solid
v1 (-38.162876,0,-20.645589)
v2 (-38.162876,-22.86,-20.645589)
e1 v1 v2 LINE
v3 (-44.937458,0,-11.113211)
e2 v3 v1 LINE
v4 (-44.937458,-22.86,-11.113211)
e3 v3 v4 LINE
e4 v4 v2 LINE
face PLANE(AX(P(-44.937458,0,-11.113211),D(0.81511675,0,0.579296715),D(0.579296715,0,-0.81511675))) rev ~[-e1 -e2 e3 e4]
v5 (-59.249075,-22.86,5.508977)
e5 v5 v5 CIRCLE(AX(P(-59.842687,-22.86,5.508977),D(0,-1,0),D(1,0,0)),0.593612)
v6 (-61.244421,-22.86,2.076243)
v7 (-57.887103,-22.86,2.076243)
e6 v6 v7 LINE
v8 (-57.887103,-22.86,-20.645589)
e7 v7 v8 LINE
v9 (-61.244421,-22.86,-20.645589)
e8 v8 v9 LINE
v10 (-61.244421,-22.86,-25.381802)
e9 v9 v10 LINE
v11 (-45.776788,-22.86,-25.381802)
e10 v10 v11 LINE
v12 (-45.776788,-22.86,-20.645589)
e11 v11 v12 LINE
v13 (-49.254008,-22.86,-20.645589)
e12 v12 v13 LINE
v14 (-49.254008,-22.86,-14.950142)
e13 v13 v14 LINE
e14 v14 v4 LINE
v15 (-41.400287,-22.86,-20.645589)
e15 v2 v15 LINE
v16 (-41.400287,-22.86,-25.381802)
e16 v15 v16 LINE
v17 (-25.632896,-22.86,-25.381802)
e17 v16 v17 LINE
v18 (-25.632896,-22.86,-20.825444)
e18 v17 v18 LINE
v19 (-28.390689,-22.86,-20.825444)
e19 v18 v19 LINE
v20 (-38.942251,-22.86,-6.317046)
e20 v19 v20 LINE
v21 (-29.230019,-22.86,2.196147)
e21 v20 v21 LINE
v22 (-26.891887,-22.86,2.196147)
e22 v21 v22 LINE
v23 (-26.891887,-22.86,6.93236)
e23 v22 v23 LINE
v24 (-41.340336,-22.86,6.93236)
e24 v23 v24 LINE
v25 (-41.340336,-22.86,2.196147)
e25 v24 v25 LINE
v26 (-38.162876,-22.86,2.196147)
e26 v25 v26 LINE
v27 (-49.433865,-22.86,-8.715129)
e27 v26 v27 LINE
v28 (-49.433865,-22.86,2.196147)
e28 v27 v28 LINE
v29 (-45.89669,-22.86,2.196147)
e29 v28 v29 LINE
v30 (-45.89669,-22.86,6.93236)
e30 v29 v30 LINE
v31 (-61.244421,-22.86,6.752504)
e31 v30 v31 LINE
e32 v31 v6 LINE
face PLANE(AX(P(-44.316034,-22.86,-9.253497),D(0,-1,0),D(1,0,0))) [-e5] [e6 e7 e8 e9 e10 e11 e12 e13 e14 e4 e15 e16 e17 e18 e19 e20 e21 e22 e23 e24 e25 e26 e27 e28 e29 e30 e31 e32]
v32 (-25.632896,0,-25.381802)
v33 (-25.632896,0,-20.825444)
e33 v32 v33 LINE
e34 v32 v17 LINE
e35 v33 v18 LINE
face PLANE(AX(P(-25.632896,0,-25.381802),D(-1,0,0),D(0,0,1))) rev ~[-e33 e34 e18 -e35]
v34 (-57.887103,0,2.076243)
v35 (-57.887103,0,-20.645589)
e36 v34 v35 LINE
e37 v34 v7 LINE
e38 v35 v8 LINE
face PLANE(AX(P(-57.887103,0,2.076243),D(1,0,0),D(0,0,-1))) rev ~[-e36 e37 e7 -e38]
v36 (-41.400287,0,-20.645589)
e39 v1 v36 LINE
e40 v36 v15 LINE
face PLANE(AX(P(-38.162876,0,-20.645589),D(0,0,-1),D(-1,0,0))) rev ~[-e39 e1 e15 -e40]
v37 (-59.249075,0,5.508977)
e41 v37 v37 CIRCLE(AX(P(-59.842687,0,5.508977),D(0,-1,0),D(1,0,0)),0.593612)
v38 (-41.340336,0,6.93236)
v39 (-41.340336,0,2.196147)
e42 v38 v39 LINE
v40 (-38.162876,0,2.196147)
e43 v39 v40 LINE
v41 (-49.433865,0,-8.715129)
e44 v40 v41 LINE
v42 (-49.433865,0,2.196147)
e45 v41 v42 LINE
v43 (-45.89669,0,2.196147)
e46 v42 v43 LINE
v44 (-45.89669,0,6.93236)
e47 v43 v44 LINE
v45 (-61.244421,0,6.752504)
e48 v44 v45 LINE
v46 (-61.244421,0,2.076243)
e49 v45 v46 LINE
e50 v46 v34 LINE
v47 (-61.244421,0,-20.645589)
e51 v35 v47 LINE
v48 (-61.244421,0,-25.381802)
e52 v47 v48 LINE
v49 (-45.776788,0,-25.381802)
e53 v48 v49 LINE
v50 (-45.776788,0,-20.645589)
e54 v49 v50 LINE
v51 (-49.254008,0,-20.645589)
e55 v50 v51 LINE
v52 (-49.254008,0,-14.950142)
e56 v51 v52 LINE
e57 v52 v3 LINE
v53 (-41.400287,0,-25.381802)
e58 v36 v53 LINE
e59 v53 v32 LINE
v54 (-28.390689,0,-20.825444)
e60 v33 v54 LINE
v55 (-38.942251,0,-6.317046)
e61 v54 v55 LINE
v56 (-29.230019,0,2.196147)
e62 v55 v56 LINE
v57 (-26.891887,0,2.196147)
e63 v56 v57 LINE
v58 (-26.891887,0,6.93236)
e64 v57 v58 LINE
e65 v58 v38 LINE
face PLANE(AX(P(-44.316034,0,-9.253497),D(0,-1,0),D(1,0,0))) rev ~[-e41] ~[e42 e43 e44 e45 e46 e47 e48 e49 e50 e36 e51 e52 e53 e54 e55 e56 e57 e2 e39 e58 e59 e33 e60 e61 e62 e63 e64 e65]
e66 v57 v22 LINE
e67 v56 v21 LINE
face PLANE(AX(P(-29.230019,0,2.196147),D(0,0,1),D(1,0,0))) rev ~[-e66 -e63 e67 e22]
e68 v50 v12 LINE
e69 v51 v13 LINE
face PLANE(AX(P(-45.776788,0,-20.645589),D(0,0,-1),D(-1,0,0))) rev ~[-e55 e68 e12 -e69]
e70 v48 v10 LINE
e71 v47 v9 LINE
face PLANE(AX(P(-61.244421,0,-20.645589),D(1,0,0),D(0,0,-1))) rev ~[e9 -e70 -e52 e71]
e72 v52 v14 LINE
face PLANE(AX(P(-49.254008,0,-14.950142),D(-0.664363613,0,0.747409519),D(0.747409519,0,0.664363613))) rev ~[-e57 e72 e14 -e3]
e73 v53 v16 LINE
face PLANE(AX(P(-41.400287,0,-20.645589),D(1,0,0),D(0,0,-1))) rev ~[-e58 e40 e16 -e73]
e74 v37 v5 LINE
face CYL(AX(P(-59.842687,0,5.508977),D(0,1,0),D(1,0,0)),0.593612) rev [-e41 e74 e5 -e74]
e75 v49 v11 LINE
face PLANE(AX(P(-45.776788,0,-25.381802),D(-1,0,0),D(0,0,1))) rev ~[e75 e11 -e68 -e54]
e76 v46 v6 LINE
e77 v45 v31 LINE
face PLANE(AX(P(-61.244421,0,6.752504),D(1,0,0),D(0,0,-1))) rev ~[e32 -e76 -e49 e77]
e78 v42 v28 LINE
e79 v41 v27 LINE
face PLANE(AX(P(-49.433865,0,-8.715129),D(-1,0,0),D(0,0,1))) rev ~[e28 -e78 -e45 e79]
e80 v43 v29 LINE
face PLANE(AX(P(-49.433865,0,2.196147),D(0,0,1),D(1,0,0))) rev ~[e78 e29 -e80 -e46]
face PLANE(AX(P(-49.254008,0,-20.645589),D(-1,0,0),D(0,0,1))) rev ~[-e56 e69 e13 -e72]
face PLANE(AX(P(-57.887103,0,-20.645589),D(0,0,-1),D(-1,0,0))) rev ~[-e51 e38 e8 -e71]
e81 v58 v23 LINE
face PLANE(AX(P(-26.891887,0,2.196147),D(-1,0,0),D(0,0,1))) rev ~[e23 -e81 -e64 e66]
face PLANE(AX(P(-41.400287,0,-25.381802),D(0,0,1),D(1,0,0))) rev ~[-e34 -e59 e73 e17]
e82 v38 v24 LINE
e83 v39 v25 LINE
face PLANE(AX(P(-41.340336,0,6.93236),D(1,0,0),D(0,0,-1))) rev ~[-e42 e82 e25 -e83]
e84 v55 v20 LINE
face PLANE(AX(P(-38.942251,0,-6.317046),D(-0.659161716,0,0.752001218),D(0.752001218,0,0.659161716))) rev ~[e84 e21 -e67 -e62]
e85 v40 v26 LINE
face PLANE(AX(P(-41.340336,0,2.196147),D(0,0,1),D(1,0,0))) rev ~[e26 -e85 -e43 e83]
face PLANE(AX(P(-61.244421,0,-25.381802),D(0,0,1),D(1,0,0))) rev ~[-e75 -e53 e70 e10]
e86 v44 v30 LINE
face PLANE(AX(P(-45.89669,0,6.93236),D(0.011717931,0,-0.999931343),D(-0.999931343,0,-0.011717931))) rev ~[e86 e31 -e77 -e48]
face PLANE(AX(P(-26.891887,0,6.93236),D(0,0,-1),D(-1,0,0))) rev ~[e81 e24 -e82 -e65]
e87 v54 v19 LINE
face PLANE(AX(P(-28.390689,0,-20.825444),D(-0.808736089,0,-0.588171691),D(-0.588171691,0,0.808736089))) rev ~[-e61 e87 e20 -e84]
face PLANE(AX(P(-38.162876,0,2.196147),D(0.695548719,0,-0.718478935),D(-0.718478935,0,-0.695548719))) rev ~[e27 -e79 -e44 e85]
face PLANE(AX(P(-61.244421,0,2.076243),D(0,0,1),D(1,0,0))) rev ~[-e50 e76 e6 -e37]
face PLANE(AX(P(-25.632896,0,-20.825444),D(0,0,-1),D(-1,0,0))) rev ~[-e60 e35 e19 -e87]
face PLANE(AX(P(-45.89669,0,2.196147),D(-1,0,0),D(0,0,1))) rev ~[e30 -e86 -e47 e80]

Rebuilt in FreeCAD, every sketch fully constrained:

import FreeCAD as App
import Part
import Sketcher

V = App.Vector
Q = App.Units.Quantity

doc = App.newDocument("Part")
params = doc.addObject("Spreadsheet::Sheet", "Params")
for row, (alias, value) in enumerate([
    ("pad1_length", "0.9 in"),
], start=1):
    params.set(f"A{row}", alias)
    params.set(f"B{row}", "=" + value)
    params.setAlias(f"B{row}", alias)

body = doc.addObject("PartDesign::Body", "Body")

sketch1 = body.newObject("Sketcher::SketchObject", "Sketch")
sketch1.AttachmentSupport = (doc.getObject("XZ_Plane"), [""])
sketch1.MapMode = "FlatFace"
sketch1.addGeometry(Part.LineSegment(V(-45.9, 6.9, 0), V(-61.2, 6.8, 0)), False)
sketch1.addGeometry(Part.LineSegment(V(-61.2, 6.8, 0), V(-61.2, 2.1, 0)), False)
sketch1.addGeometry(Part.LineSegment(V(-61.2, 2.1, 0), V(-57.9, 2.1, 0)), False)
sketch1.addGeometry(Part.LineSegment(V(-57.9, 2.1, 0), V(-57.9, -20.6, 0)), False)
sketch1.addGeometry(Part.LineSegment(V(-57.9, -20.6, 0), V(-61.2, -20.6, 0)), False)
sketch1.addGeometry(Part.LineSegment(V(-61.2, -20.6, 0), V(-61.2, -25.4, 0)), False)
sketch1.addGeometry(Part.LineSegment(V(-61.2, -25.4, 0), V(-45.8, -25.4, 0)), False)
sketch1.addGeometry(Part.LineSegment(V(-45.8, -25.4, 0), V(-45.8, -20.6, 0)), False)
sketch1.addGeometry(Part.LineSegment(V(-45.8, -20.6, 0), V(-49.3, -20.6, 0)), False)
sketch1.addGeometry(Part.LineSegment(V(-49.3, -20.6, 0), V(-49.3, -15, 0)), False)
sketch1.addGeometry(Part.LineSegment(V(-49.3, -15, 0), V(-44.9, -11.1, 0)), False)
sketch1.addGeometry(Part.LineSegment(V(-44.9, -11.1, 0), V(-38.2, -20.6, 0)), False)
sketch1.addGeometry(Part.LineSegment(V(-38.2, -20.6, 0), V(-41.4, -20.6, 0)), False)
sketch1.addGeometry(Part.LineSegment(V(-41.4, -20.6, 0), V(-41.4, -25.4, 0)), False)
sketch1.addGeometry(Part.LineSegment(V(-41.4, -25.4, 0), V(-25.6, -25.4, 0)), False)
sketch1.addGeometry(Part.LineSegment(V(-25.6, -25.4, 0), V(-25.6, -20.8, 0)), False)
sketch1.addGeometry(Part.LineSegment(V(-25.6, -20.8, 0), V(-28.4, -20.8, 0)), False)
sketch1.addGeometry(Part.LineSegment(V(-28.4, -20.8, 0), V(-38.9, -6.3, 0)), False)
sketch1.addGeometry(Part.LineSegment(V(-38.9, -6.3, 0), V(-29.2, 2.2, 0)), False)
sketch1.addGeometry(Part.LineSegment(V(-29.2, 2.2, 0), V(-26.9, 2.2, 0)), False)
sketch1.addGeometry(Part.LineSegment(V(-26.9, 2.2, 0), V(-26.9, 6.9, 0)), False)
sketch1.addGeometry(Part.LineSegment(V(-26.9, 6.9, 0), V(-41.3, 6.9, 0)), False)
sketch1.addGeometry(Part.LineSegment(V(-41.3, 6.9, 0), V(-41.3, 2.2, 0)), False)
sketch1.addGeometry(Part.LineSegment(V(-41.3, 2.2, 0), V(-38.2, 2.2, 0)), False)
sketch1.addGeometry(Part.LineSegment(V(-38.2, 2.2, 0), V(-49.4, -8.7, 0)), False)
sketch1.addGeometry(Part.LineSegment(V(-49.4, -8.7, 0), V(-49.4, 2.2, 0)), False)
sketch1.addGeometry(Part.LineSegment(V(-49.4, 2.2, 0), V(-45.9, 2.2, 0)), False)
sketch1.addGeometry(Part.LineSegment(V(-45.9, 2.2, 0), V(-45.9, 6.9, 0)), False)
sketch1.addGeometry(Part.Circle(V(-59.8, 5.5, 0), V(0, 0, 1), 0.6), False)
sketch1.addConstraint(Sketcher.Constraint("Coincident", 0, 2, 1, 1))
sketch1.addConstraint(Sketcher.Constraint("Coincident", 1, 2, 2, 1))
sketch1.addConstraint(Sketcher.Constraint("Coincident", 2, 2, 3, 1))
sketch1.addConstraint(Sketcher.Constraint("Coincident", 3, 2, 4, 1))
sketch1.addConstraint(Sketcher.Constraint("Coincident", 4, 2, 5, 1))
sketch1.addConstraint(Sketcher.Constraint("Coincident", 5, 2, 6, 1))
sketch1.addConstraint(Sketcher.Constraint("Coincident", 6, 2, 7, 1))
sketch1.addConstraint(Sketcher.Constraint("Coincident", 7, 2, 8, 1))
sketch1.addConstraint(Sketcher.Constraint("Coincident", 8, 2, 9, 1))
sketch1.addConstraint(Sketcher.Constraint("Coincident", 9, 2, 10, 1))
sketch1.addConstraint(Sketcher.Constraint("Coincident", 10, 2, 11, 1))
sketch1.addConstraint(Sketcher.Constraint("Coincident", 11, 2, 12, 1))
sketch1.addConstraint(Sketcher.Constraint("Coincident", 12, 2, 13, 1))
sketch1.addConstraint(Sketcher.Constraint("Coincident", 13, 2, 14, 1))
sketch1.addConstraint(Sketcher.Constraint("Coincident", 14, 2, 15, 1))
sketch1.addConstraint(Sketcher.Constraint("Coincident", 15, 2, 16, 1))
sketch1.addConstraint(Sketcher.Constraint("Coincident", 16, 2, 17, 1))
sketch1.addConstraint(Sketcher.Constraint("Coincident", 17, 2, 18, 1))
sketch1.addConstraint(Sketcher.Constraint("Coincident", 18, 2, 19, 1))
sketch1.addConstraint(Sketcher.Constraint("Coincident", 19, 2, 20, 1))
sketch1.addConstraint(Sketcher.Constraint("Coincident", 20, 2, 21, 1))
sketch1.addConstraint(Sketcher.Constraint("Coincident", 21, 2, 22, 1))
sketch1.addConstraint(Sketcher.Constraint("Coincident", 22, 2, 23, 1))
sketch1.addConstraint(Sketcher.Constraint("Coincident", 23, 2, 24, 1))
sketch1.addConstraint(Sketcher.Constraint("Coincident", 24, 2, 25, 1))
sketch1.addConstraint(Sketcher.Constraint("Coincident", 25, 2, 26, 1))
sketch1.addConstraint(Sketcher.Constraint("Coincident", 26, 2, 27, 1))
sketch1.addConstraint(Sketcher.Constraint("Coincident", 27, 2, 0, 1))
sketch1.addConstraint(Sketcher.Constraint("Vertical", 1))
sketch1.addConstraint(Sketcher.Constraint("Horizontal", 2))
sketch1.addConstraint(Sketcher.Constraint("Vertical", 3))
sketch1.addConstraint(Sketcher.Constraint("Horizontal", 4))
sketch1.addConstraint(Sketcher.Constraint("Vertical", 5))
sketch1.addConstraint(Sketcher.Constraint("Horizontal", 6))
sketch1.addConstraint(Sketcher.Constraint("Vertical", 7))
sketch1.addConstraint(Sketcher.Constraint("Horizontal", 8))
sketch1.addConstraint(Sketcher.Constraint("Vertical", 9))
sketch1.addConstraint(Sketcher.Constraint("Horizontal", 12))
sketch1.addConstraint(Sketcher.Constraint("Vertical", 13))
sketch1.addConstraint(Sketcher.Constraint("Horizontal", 14))
sketch1.addConstraint(Sketcher.Constraint("Vertical", 15))
sketch1.addConstraint(Sketcher.Constraint("Horizontal", 16))
sketch1.addConstraint(Sketcher.Constraint("Horizontal", 19))
sketch1.addConstraint(Sketcher.Constraint("Vertical", 20))
sketch1.addConstraint(Sketcher.Constraint("Horizontal", 21))
sketch1.addConstraint(Sketcher.Constraint("Vertical", 22))
sketch1.addConstraint(Sketcher.Constraint("Horizontal", 23))
sketch1.addConstraint(Sketcher.Constraint("Vertical", 25))
sketch1.addConstraint(Sketcher.Constraint("Horizontal", 26))
sketch1.addConstraint(Sketcher.Constraint("Vertical", 27))
sketch1.addConstraint(Sketcher.Constraint("Horizontal", 4, 2, 7, 2))
sketch1.addConstraint(Sketcher.Constraint("Horizontal", 8, 2, 11, 2))
sketch1.addConstraint(Sketcher.Constraint("Horizontal", 6, 2, 13, 2))
sketch1.addConstraint(Sketcher.Constraint("Horizontal", 19, 2, 22, 2))
sketch1.addConstraint(Sketcher.Constraint("Horizontal", 23, 2, 25, 2))
sketch1.addConstraint(Sketcher.Constraint("Horizontal", 21, 2, 27, 2))
sketch1.addConstraint(Sketcher.Constraint("Vertical", 1, 2, 4, 2))
sketch1.addConstraint(Sketcher.Constraint("Vertical", 11, 2, 23, 2))
sketch1.addConstraint(Sketcher.Constraint("Equal", 13, 20))
sketch1.addConstraint(Sketcher.Constraint("Diameter", 28, Q("1.187224 mm")))
sketch1.addConstraint(Sketcher.Constraint("DistanceX", 8, 2, 8, 1, Q("3.47722 mm")))
sketch1.addConstraint(Sketcher.Constraint("DistanceX", 12, 2, 12, 1, Q("3.237411 mm")))
sketch1.addConstraint(Sketcher.Constraint("DistanceX", 14, 1, 14, 2, Q("15.767391 mm")))
sketch1.addConstraint(Sketcher.Constraint("DistanceX", 19, 1, 19, 2, Q("2.338132 mm")))
sketch1.addConstraint(Sketcher.Constraint("DistanceX", 21, 2, 21, 1, Q("14.448449 mm")))
sketch1.addConstraint(Sketcher.Constraint("DistanceX", 23, 1, 23, 2, Q("3.17746 mm")))
sketch1.addConstraint(Sketcher.Constraint("DistanceY", 1, 2, 1, 1, Q("4.676261 mm")))
sketch1.addConstraint(Sketcher.Constraint("DistanceY", 3, 2, 3, 1, Q("22.721832 mm")))
sketch1.addConstraint(Sketcher.Constraint("DistanceX", 7, 2, 12, 2, Q("4.376501 mm")))
sketch1.addConstraint(Sketcher.Constraint("DistanceX", 16, 2, 19, 2, Q("1.498802 mm")))
sketch1.addConstraint(Sketcher.Constraint("Distance", 18, Q("12.915181 mm")))
sketch1.addConstraint(Sketcher.Constraint("DistanceX", 2, 1, 2, 2, Q("3.357318 mm")))
sketch1.addConstraint(Sketcher.Constraint("DistanceX", 6, 1, 6, 2, Q("15.467633 mm")))
sketch1.addConstraint(Sketcher.Constraint("DistanceX", 26, 1, 26, 2, Q("3.537175 mm")))
sketch1.addConstraint(Sketcher.Constraint("DistanceY", 5, 2, 5, 1, Q("4.736213 mm")))
sketch1.addConstraint(Sketcher.Constraint("DistanceY", 9, 1, 9, 2, Q("5.695447 mm")))
sketch1.addConstraint(Sketcher.Constraint("DistanceY", 15, 1, 15, 2, Q("4.556358 mm")))
sketch1.addConstraint(Sketcher.Constraint("DistanceY", 25, 1, 25, 2, Q("10.911276 mm")))
sketch1.addConstraint(Sketcher.Constraint("DistanceX", 0, 2, -1, 1, Q("61.244421 mm")))
sketch1.addConstraint(Sketcher.Constraint("DistanceY", 3, 2, -1, 1, Q("20.645589 mm")))
sketch1.addConstraint(Sketcher.Constraint("DistanceY", 10, 2, -1, 1, Q("11.113211 mm")))
sketch1.addConstraint(Sketcher.Constraint("DistanceX", 17, 2, -1, 1, Q("38.942251 mm")))
sketch1.addConstraint(Sketcher.Constraint("DistanceY", -1, 1, 20, 2, Q("6.93236 mm")))
sketch1.addConstraint(Sketcher.Constraint("DistanceX", 26, 2, -1, 1, Q("45.89669 mm")))
sketch1.addConstraint(Sketcher.Constraint("DistanceY", 5, 2, 28, 3, Q("30.890779 mm")))
sketch1.addConstraint(Sketcher.Constraint("DistanceX", 9, 2, 10, 2, Q("4.31655 mm")))
sketch1.addConstraint(Sketcher.Constraint("DistanceX", 28, 3, -1, 1, Q("59.842687 mm")))
pad1 = body.newObject("PartDesign::Pad", "Pad")
pad1.Profile = sketch1
pad1.setExpression("Length", "Params.pad1_length")

doc.recompute()
